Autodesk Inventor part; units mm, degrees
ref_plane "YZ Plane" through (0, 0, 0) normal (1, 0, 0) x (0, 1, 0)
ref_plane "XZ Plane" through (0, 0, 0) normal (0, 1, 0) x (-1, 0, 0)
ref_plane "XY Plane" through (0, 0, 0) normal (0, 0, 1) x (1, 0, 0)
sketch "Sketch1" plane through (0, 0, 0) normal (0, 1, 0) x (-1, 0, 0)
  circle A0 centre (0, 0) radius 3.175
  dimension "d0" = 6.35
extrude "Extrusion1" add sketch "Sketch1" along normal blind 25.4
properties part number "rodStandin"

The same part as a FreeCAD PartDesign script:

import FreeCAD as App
import Part
import Sketcher

V = App.Vector
Q = App.Units.Quantity

doc = App.newDocument("Part")
params = doc.addObject("Spreadsheet::Sheet", "Params")
for row, (alias, value) in enumerate([
    ("sketch1_diameter", "0.25 in"),
    ("pad1_length", "1 in"),
], start=1):
    params.set(f"A{row}", alias)
    params.set(f"B{row}", "=" + value)
    params.setAlias(f"B{row}", alias)

body = doc.addObject("PartDesign::Body", "Body")

sketch1 = body.newObject("Sketcher::SketchObject", "Sketch")
sketch1.AttachmentSupport = (doc.getObject("XZ_Plane"), [""])
sketch1.MapMode = "FlatFace"
sketch1.addGeometry(Part.Circle(V(0, 0, 0), V(0, 0, 1), 3.2), False)
sketch1.addConstraint([
    Sketcher.Constraint("Coincident", 0, 3, -1, 1),
    Sketcher.Constraint("Diameter", 0, Q("0.25 in")),
])
sketch1.setExpression("Constraints[1]", "Params.sketch1_diameter")
pad1 = body.newObject("PartDesign::Pad", "Pad")
pad1.Profile = sketch1
pad1.setExpression("Length", "Params.pad1_length")
pad1.Reversed = True

doc.recompute()
